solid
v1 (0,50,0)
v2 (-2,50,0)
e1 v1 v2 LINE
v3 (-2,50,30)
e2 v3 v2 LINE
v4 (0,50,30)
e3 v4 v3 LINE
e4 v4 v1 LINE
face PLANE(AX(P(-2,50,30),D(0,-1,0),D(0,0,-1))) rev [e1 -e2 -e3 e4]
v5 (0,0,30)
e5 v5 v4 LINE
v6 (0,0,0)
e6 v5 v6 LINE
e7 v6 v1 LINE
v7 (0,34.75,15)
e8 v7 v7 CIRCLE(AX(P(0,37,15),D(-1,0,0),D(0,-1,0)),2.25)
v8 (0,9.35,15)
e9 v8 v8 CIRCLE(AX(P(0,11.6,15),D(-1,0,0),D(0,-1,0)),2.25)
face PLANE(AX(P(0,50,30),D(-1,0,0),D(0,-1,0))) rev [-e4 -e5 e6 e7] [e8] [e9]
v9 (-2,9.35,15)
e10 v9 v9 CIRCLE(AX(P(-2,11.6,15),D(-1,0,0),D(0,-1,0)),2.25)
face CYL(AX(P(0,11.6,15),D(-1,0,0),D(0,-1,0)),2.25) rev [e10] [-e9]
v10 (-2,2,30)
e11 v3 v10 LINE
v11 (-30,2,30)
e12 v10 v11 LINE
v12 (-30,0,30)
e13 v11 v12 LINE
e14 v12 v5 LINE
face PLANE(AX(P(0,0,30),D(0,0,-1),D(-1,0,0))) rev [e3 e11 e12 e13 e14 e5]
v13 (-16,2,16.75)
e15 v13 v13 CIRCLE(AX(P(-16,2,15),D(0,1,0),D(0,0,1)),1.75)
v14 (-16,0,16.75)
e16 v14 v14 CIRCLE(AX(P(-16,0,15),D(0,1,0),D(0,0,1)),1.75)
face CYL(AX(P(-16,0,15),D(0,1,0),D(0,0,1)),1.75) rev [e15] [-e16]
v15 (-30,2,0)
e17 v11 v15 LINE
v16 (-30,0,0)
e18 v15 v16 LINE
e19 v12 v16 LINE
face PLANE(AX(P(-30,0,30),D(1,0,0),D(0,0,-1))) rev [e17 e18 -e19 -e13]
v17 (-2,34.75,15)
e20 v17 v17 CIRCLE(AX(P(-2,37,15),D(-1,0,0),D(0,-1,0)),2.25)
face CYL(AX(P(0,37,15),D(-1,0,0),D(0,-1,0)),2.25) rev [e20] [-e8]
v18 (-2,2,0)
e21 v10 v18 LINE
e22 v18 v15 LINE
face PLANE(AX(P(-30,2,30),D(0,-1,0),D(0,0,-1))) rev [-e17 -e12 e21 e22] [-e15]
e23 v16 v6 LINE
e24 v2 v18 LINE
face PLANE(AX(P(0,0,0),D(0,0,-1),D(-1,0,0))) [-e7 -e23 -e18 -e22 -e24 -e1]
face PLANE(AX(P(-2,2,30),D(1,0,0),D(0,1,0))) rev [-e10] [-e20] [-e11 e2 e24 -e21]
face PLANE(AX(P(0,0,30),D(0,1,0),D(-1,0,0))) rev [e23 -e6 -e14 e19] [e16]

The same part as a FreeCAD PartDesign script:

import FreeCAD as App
import Part
import Sketcher
Q = App.Units.Quantity

doc = App.newDocument("Part")
body = doc.addObject("PartDesign::Body", "Body")

# Sketch on XY plane
sketch1 = body.newObject("Sketcher::SketchObject", "Sketch")
sketch1.AttachmentSupport = (doc.getObject("XY_Plane"), [""])
sketch1.MapMode = "FlatFace"
sketch1.addGeometry([
    Part.LineSegment(App.Vector(-30, 0, 0), App.Vector(0, 0, 0)),  # 0
    Part.LineSegment(App.Vector(0, 0, 0), App.Vector(0, 50, 0)),  # 1
    Part.LineSegment(App.Vector(0, 50, 0), App.Vector(-2, 50, 0)),  # 2
    Part.LineSegment(App.Vector(-2, 50, 0), App.Vector(-2, 2, 0)),  # 3
    Part.LineSegment(App.Vector(-2, 2, 0), App.Vector(-30, 2, 0)),  # 4
    Part.LineSegment(App.Vector(-30, 2, 0), App.Vector(-30, 0, 0)),  # 5
], False)
sketch1.addConstraint([
    Sketcher.Constraint("Coincident", 0, 2, 1, 1),
    Sketcher.Constraint("Coincident", 1, 2, 2, 1),
    Sketcher.Constraint("Coincident", 2, 2, 3, 1),
    Sketcher.Constraint("Coincident", 3, 2, 4, 1),
    Sketcher.Constraint("Coincident", 4, 2, 5, 1),
    Sketcher.Constraint("Coincident", 5, 2, 0, 1),
    Sketcher.Constraint("Horizontal", 0),
    Sketcher.Constraint("Vertical", 1),
    Sketcher.Constraint("Horizontal", 2),
    Sketcher.Constraint("Vertical", 3),
    Sketcher.Constraint("Horizontal", 4),
    Sketcher.Constraint("Vertical", 5),
    Sketcher.Constraint("Coincident", 0, 2, -1, 1),
    Sketcher.Constraint("Equal", 2, 5),
    Sketcher.Constraint("DistanceX", 0, 1, 0, 2, Q("30 mm")),
    Sketcher.Constraint("DistanceX", 2, 2, 2, 1, Q("2 mm")),
    Sketcher.Constraint("DistanceY", 1, 1, 1, 2, Q("50 mm")),
])
pad1 = body.newObject("PartDesign::Pad", "Pad")
pad1.Profile = sketch1
pad1.Length = 30

# Sketch on YZ plane
sketch2 = body.newObject("Sketcher::SketchObject", "Sketch001")
sketch2.AttachmentSupport = (doc.getObject("YZ_Plane"), [""])
sketch2.MapMode = "FlatFace"
sketch2.AttachmentOffset = App.Placement(App.Vector(0, 0, -2), App.Rotation())
sketch2.addGeometry([
    Part.Circle(App.Vector(37, 15, 0), App.Vector(0, 0, 1), 2.25),
    Part.Circle(App.Vector(11.6, 15, 0), App.Vector(0, 0, 1), 2.25),
], False)
sketch2.addConstraint([
    Sketcher.Constraint("Equal", 0, 1),
    Sketcher.Constraint("Horizontal", 0, 3, 1, 3),
    Sketcher.Constraint("Diameter", 0, Q("4.5 mm")),
    Sketcher.Constraint("DistanceX", -1, 1, 0, 3, Q("37 mm")),
    Sketcher.Constraint("DistanceY", -1, 1, 0, 3, Q("15 mm")),
    Sketcher.Constraint("DistanceX", -1, 1, 1, 3, Q("11.6 mm")),
])
pocket1 = body.newObject("PartDesign::Pocket", "Pocket")
pocket1.Profile = sketch2
pocket1.Type = "ThroughAll"
pocket1.Reversed = True

# Sketch on XZ plane
sketch3 = body.newObject("Sketcher::SketchObject", "Sketch002")
sketch3.AttachmentSupport = (doc.getObject("XZ_Plane"), [""])
sketch3.MapMode = "FlatFace"
sketch3.AttachmentOffset = App.Placement(App.Vector(0, 0, -2), App.Rotation())
sketch3.addGeometry(Part.Circle(App.Vector(-16, 15, 0), App.Vector(0, 0, 1), 1.75), False)
sketch3.addConstraint([
    Sketcher.Constraint("Diameter", 0, Q("3.5 mm")),
    Sketcher.Constraint("DistanceX", 0, 3, -1, 1, Q("16 mm")),
    Sketcher.Constraint("DistanceY", -1, 1, 0, 3, Q("15 mm")),
])
pocket2 = body.newObject("PartDesign::Pocket", "Pocket001")
pocket2.Profile = sketch3
pocket2.Type = "ThroughAll"
pocket2.Reversed = True

doc.recompute()
